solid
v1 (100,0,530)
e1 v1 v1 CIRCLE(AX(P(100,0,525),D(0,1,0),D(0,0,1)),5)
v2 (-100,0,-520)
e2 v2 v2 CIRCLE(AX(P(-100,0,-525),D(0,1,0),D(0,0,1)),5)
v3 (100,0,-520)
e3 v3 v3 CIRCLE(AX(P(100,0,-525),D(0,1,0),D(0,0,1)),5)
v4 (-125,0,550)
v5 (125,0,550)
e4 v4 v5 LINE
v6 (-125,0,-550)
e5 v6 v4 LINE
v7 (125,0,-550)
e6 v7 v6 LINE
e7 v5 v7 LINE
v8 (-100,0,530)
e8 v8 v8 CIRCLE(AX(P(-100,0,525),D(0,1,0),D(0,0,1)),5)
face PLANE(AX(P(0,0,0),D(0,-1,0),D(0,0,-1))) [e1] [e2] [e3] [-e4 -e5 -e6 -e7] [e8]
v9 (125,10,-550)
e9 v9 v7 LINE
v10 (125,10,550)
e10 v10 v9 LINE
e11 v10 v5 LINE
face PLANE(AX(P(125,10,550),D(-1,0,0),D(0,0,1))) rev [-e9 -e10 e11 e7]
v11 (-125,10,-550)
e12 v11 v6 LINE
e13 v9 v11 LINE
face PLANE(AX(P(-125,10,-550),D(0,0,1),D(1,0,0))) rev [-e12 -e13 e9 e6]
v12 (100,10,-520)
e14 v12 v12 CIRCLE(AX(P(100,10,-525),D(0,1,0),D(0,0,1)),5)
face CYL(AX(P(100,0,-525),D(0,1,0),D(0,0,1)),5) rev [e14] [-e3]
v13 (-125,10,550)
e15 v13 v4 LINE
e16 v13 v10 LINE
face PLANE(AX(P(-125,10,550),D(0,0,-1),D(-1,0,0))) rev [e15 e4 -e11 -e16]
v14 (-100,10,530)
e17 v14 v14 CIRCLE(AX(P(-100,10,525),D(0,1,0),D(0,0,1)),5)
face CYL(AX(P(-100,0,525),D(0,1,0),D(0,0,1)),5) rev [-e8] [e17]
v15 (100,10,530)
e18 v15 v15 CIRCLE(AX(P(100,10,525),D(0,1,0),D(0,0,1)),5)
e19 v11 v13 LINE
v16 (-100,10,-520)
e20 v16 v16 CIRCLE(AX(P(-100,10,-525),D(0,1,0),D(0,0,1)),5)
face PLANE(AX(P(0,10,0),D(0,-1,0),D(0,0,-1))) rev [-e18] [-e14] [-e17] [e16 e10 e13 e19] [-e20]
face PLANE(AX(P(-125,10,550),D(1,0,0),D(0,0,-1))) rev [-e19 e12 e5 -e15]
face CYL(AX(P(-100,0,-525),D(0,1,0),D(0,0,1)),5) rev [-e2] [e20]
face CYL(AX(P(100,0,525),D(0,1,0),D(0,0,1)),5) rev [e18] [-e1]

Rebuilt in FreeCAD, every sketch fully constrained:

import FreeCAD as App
import Part
import Sketcher


def add_polygon(sketch, points):
    """Adds a closed chain of lines whose ends are joined by coincident constraints."""
    first, n = sketch.GeometryCount, len(points)
    for a, b in zip(points, points[1:] + points[:1]):
        sketch.addGeometry(Part.LineSegment(App.Vector(*a, 0), App.Vector(*b, 0)), False)
    for i in range(n):
        sketch.addConstraint(Sketcher.Constraint("Coincident", first + i, 2, first + (i + 1) % n, 1))

doc = App.newDocument("Part")
params = doc.addObject("Spreadsheet::Sheet", "Params")
for row, (alias, value) in enumerate([
    ("sketch1_width", "250 mm"),
    ("sketch1_height", "1100 mm"),
    ("pad1_length", "10 mm"),
    ("sketch2_diameter", "10 mm"),
], start=1):
    params.set(f"A{row}", alias)
    params.set(f"B{row}", "=" + value)
    params.setAlias(f"B{row}", alias)

body = doc.addObject("PartDesign::Body", "Body")

sketch1 = doc.addObject("Sketcher::SketchObject", "Sketch")
body.addObject(sketch1)
sketch1.AttachmentSupport = (doc.XZ_Plane, [""])
sketch1.MapMode = "FlatFace"
add_polygon(sketch1, [(-125, -550), (-125, 550), (125, 550), (125, -550)])
sketch1.addConstraint(Sketcher.Constraint("Vertical", 0))
sketch1.addConstraint(Sketcher.Constraint("Horizontal", 1))
sketch1.addConstraint(Sketcher.Constraint("Vertical", 2))
sketch1.addConstraint(Sketcher.Constraint("Horizontal", 3))
sketch1.addConstraint(Sketcher.Constraint("Symmetric", 0, 2, 2, 2, -1, 1))
sketch1.addConstraint(Sketcher.Constraint("DistanceX", 1, 1, 1, 2, 250.0))
sketch1.addConstraint(Sketcher.Constraint("DistanceY", 0, 1, 0, 2, 1100.0))
sketch1.setExpression("Constraints[9]", "Params.sketch1_width")
sketch1.setExpression("Constraints[10]", "Params.sketch1_height")
pad1 = doc.addObject("PartDesign::Pad", "Pad")
body.addObject(pad1)
pad1.Profile = sketch1
pad1.setExpression("Length", "Params.pad1_length")
pad1.Reversed = True

sketch2 = doc.addObject("Sketcher::SketchObject", "Sketch001")
body.addObject(sketch2)
sketch2.AttachmentSupport = (doc.XZ_Plane, [""])
sketch2.MapMode = "FlatFace"
sketch2.AttachmentOffset = App.Placement(App.Vector(0, 0, -10), App.Rotation())
sketch2.addGeometry(Part.Circle(App.Vector(100, -525, 0), App.Vector(0, 0, 1), 5), False)
sketch2.addGeometry(Part.Circle(App.Vector(-100, -525, 0), App.Vector(0, 0, 1), 5), False)
sketch2.addGeometry(Part.Circle(App.Vector(100, 525, 0), App.Vector(0, 0, 1), 5), False)
sketch2.addGeometry(Part.Circle(App.Vector(-100, 525, 0), App.Vector(0, 0, 1), 5), False)
sketch2.addConstraint(Sketcher.Constraint("Equal", 0, 1))
sketch2.addConstraint(Sketcher.Constraint("Equal", 1, 2))
sketch2.addConstraint(Sketcher.Constraint("Equal", 2, 3))
sketch2.addConstraint(Sketcher.Constraint("Symmetric", 1, 3, 2, 3, -1, 1))
sketch2.addConstraint(Sketcher.Constraint("Symmetric", 0, 3, 3, 3, -1, 1))
sketch2.addConstraint(Sketcher.Constraint("Symmetric", 0, 3, 1, 3, -2))
sketch2.addConstraint(Sketcher.Constraint("Diameter", 0, 10.0))
sketch2.addConstraint(Sketcher.Constraint("DistanceX", -1, 1, 0, 3, 100.0))
sketch2.addConstraint(Sketcher.Constraint("DistanceY", 0, 3, -1, 1, 525.0))
sketch2.setExpression("Constraints[6]", "Params.sketch2_diameter")
pocket1 = doc.addObject("PartDesign::Pocket", "Pocket")
body.addObject(pocket1)
pocket1.Profile = sketch2
pocket1.Type = "ThroughAll"
pocket1.Reversed = True

doc.recompute()
